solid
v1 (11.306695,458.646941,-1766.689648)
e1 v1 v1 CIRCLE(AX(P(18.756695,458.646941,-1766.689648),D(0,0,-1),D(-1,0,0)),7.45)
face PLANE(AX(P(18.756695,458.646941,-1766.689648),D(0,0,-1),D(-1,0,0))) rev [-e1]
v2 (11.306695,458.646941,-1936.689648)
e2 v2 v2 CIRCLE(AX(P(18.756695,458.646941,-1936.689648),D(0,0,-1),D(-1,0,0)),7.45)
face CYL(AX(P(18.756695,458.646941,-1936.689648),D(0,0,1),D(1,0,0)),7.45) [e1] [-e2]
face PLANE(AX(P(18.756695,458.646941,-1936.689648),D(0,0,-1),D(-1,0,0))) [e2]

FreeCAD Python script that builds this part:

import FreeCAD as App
import Part
import Sketcher

V = App.Vector

doc = App.newDocument("Part")
body = doc.addObject("PartDesign::Body", "Body")

# Sketch on XY plane
sketch1 = body.newObject("Sketcher::SketchObject", "Sketch")
sketch1.AttachmentSupport = (doc.getObject("XY_Plane"), [""])
sketch1.MapMode = "FlatFace"
sketch1.AttachmentOffset = App.Placement(V(0, 0, -1766.689648), App.Rotation())
sketch1.addGeometry(Part.Circle(V(19, 459, 0), V(0, 0, 1), 7), False)
sketch1.addConstraint([
    Sketcher.Constraint("Diameter", 0, 14.9),
    Sketcher.Constraint("DistanceY", -1, 1, 0, 3, 458.646941),
    Sketcher.Constraint("DistanceX", -1, 1, 0, 3, 18.756695),
])
pad1 = body.newObject("PartDesign::Pad", "Pad")
pad1.Profile = sketch1
pad1.Length = 170
pad1.Reversed = True

doc.recompute()
